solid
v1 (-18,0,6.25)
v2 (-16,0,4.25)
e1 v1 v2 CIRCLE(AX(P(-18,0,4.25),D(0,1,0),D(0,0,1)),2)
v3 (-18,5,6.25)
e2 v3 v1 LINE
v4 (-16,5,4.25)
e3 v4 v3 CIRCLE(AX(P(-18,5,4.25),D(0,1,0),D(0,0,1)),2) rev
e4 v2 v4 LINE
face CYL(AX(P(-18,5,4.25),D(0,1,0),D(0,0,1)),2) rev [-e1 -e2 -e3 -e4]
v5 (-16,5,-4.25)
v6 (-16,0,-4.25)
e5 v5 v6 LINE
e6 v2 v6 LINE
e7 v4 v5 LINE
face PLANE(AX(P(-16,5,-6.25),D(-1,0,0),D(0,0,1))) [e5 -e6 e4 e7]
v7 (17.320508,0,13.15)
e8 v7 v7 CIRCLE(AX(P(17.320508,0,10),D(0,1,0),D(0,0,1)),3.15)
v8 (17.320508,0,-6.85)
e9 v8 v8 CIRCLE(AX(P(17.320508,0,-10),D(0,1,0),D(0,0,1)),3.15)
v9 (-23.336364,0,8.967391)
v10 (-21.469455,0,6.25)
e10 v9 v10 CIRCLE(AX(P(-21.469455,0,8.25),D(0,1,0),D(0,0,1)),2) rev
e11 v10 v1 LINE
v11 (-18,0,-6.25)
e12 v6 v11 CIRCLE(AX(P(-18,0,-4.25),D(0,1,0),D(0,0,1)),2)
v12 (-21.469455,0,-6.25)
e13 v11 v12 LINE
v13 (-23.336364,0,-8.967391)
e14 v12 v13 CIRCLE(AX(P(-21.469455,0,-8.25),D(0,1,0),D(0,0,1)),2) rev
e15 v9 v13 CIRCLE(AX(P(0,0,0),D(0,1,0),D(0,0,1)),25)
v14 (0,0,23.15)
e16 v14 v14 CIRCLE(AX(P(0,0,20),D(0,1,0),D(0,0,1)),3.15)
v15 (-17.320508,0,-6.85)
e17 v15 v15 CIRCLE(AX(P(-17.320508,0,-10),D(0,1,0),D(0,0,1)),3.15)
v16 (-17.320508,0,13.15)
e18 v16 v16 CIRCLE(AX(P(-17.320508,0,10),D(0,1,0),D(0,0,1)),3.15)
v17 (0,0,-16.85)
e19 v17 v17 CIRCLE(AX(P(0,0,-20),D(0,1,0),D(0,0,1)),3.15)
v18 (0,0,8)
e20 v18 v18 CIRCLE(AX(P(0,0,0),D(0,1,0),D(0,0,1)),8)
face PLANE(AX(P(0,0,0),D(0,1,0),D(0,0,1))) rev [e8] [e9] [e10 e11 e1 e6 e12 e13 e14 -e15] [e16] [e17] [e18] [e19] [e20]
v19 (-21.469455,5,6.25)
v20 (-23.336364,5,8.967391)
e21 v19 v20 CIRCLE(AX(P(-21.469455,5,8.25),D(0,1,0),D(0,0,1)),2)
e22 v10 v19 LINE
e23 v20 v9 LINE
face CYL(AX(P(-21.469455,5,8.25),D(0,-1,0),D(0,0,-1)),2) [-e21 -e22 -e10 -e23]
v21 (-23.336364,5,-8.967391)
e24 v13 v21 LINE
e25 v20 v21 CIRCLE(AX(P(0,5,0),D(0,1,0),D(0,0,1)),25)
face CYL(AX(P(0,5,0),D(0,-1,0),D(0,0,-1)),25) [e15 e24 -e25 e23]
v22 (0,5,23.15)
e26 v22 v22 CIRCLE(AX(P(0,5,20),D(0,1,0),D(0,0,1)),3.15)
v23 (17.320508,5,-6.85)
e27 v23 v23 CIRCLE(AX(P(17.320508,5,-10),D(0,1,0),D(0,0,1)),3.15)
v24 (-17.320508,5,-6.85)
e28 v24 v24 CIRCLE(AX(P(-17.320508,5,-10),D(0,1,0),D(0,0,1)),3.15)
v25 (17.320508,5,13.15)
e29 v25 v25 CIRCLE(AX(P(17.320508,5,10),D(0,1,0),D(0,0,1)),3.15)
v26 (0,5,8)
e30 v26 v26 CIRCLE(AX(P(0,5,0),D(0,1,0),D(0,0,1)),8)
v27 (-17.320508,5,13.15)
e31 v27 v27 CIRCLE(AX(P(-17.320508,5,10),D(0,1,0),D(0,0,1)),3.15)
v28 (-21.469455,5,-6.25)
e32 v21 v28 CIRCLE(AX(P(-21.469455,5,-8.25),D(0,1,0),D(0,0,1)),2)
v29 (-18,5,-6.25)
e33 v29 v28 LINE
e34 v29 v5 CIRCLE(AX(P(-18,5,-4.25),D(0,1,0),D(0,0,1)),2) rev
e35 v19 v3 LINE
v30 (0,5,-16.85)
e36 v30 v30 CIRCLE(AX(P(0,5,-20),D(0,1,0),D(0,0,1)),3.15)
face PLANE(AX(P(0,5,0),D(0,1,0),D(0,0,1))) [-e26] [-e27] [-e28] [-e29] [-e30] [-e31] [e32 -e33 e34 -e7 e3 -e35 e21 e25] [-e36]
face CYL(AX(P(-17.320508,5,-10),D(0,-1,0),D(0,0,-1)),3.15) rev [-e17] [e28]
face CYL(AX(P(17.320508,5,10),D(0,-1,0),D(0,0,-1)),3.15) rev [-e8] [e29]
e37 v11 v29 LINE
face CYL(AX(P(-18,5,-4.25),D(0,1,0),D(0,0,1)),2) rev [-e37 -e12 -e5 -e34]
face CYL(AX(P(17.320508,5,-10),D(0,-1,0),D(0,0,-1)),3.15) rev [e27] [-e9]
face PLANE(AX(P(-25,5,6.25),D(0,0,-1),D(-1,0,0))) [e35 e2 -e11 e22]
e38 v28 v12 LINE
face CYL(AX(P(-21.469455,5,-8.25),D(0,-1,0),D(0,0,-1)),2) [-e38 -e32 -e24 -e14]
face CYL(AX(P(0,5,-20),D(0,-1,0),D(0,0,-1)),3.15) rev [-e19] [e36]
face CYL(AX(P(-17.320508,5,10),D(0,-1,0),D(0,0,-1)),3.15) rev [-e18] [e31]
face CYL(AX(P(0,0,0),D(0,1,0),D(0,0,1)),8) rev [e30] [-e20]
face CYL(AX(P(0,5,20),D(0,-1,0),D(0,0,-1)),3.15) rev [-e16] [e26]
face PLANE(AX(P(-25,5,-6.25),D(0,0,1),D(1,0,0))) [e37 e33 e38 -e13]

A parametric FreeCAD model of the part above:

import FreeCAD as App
import Part
import Sketcher
from FreeCAD import Vector
Q = App.Units.Quantity


def edges_at(feature, points):
    """Names of the edges that pass closest to the given points."""
    edges = feature.Shape.Edges
    near = lambda p: min(range(len(edges)), key=lambda i: edges[i].distToShape(Part.Vertex(*p))[0])
    return sorted({f"Edge{near(p) + 1}" for p in points})


def add_polygon(sketch, points):
    """Adds a closed chain of lines whose ends are joined by coincident constraints."""
    first, n = sketch.GeometryCount, len(points)
    for a, b in zip(points, points[1:] + points[:1]):
        sketch.addGeometry(Part.LineSegment(App.Vector(*a, 0), App.Vector(*b, 0)), False)
    for i in range(n):
        sketch.addConstraint(Sketcher.Constraint("Coincident", first + i, 2, first + (i + 1) % n, 1))

doc = App.newDocument("Part")
body = doc.addObject("PartDesign::Body", "Body")

# Sketch on XZ plane
sketch1 = doc.addObject("Sketcher::SketchObject", "Sketch")
body.addObject(sketch1)
sketch1.AttachmentSupport = (doc.XZ_Plane, [""])
sketch1.MapMode = "FlatFace"
sketch1.addGeometry(Part.Circle(Vector(0, 0, 0), Vector(0, 0, 1), 25), False)
sketch1.addGeometry(Part.Circle(Vector(-17.3, 10, 0), Vector(0, 0, 1), 3.1), False)
sketch1.addGeometry(Part.Circle(Vector(0, 20, 0), Vector(0, 0, 1), 3.1), False)
sketch1.addGeometry(Part.Circle(Vector(17.3, 10, 0), Vector(0, 0, 1), 3.1), False)
sketch1.addGeometry(Part.Circle(Vector(-17.3, -10, 0), Vector(0, 0, 1), 3.1), False)
sketch1.addGeometry(Part.Circle(Vector(17.3, -10, 0), Vector(0, 0, 1), 3.1), False)
sketch1.addGeometry(Part.Circle(Vector(0, -20, 0), Vector(0, 0, 1), 3.1), False)
sketch1.addConstraint(Sketcher.Constraint("Coincident", 0, 3, -1, 1))
sketch1.addConstraint(Sketcher.Constraint("Equal", 1, 2))
sketch1.addConstraint(Sketcher.Constraint("Equal", 2, 3))
sketch1.addConstraint(Sketcher.Constraint("Equal", 3, 4))
sketch1.addConstraint(Sketcher.Constraint("Equal", 4, 5))
sketch1.addConstraint(Sketcher.Constraint("Equal", 5, 6))
sketch1.addConstraint(Sketcher.Constraint("Symmetric", 3, 3, 4, 3, -1, 1))
sketch1.addConstraint(Sketcher.Constraint("Symmetric", 1, 3, 5, 3, -1, 1))
sketch1.addConstraint(Sketcher.Constraint("Symmetric", 2, 3, 6, 3, -1, 1))
sketch1.addConstraint(Sketcher.Constraint("Symmetric", 1, 3, 3, 3, -2))
sketch1.addConstraint(Sketcher.Constraint("PointOnObject", 2, 3, -2))
sketch1.addConstraint(Sketcher.Constraint("Diameter", 0, Q("50 mm")))
sketch1.addConstraint(Sketcher.Constraint("Diameter", 1, Q("6.3 mm")))
sketch1.addConstraint(Sketcher.Constraint("DistanceY", -1, 1, 1, 3, Q("10 mm")))
sketch1.addConstraint(Sketcher.Constraint("DistanceY", -1, 1, 2, 3, Q("20 mm")))
sketch1.addConstraint(Sketcher.Constraint("DistanceX", 1, 3, -1, 1, Q("17.320508 mm")))
pad1 = doc.addObject("PartDesign::Pad", "Pad")
body.addObject(pad1)
pad1.Profile = sketch1
pad1.Length = 5
pad1.Reversed = True

# Sketch on XZ plane
sketch2 = doc.addObject("Sketcher::SketchObject", "Sketch001")
body.addObject(sketch2)
sketch2.AttachmentSupport = (doc.XZ_Plane, [""])
sketch2.MapMode = "FlatFace"
add_polygon(sketch2, [(-25, -6), (-25, 6), (-16, 6), (-16, -6)])  # lines 0-3
sketch2.addConstraint(Sketcher.Constraint("Vertical", 0))
sketch2.addConstraint(Sketcher.Constraint("Horizontal", 1))
sketch2.addConstraint(Sketcher.Constraint("Vertical", 2))
sketch2.addConstraint(Sketcher.Constraint("Horizontal", 3))
sketch2.addConstraint(Sketcher.Constraint("DistanceX", 1, 1, 1, 2, Q("9 mm")))
sketch2.addConstraint(Sketcher.Constraint("DistanceY", 0, 1, 0, 2, Q("12.5 mm")))
sketch2.addConstraint(Sketcher.Constraint("DistanceX", 0, 2, -1, 1, Q("25 mm")))
sketch2.addConstraint(Sketcher.Constraint("DistanceY", -1, 1, 0, 2, Q("6.25 mm")))
pocket1 = doc.addObject("PartDesign::Pocket", "Pocket")
body.addObject(pocket1)
pocket1.Profile = sketch2
pocket1.Type = "ThroughAll"
doc.recompute()

fillet = doc.addObject("PartDesign::Fillet", "Fillet")
body.addObject(fillet)
fillet.Base = (pocket1, edges_at(pocket1, [
    (-24.206, 2.5, -6.25),
    (-24.206, 2.5, 6.25),
    (-16, 2.5, -6.25),
    (-16, 2.5, 6.25),
]))
fillet.Radius = 2

# Sketch on XZ plane
sketch3 = doc.addObject("Sketcher::SketchObject", "Sketch002")
body.addObject(sketch3)
sketch3.AttachmentSupport = (doc.XZ_Plane, [""])
sketch3.MapMode = "FlatFace"
sketch3.AttachmentOffset = App.Placement(Vector(0, 0, -5), App.Rotation())
sketch3.addGeometry(Part.Circle(Vector(0, 0, 0), Vector(0, 0, 1), 8), False)
sketch3.addConstraint(Sketcher.Constraint("Coincident", 0, 3, -1, 1))
sketch3.addConstraint(Sketcher.Constraint("Diameter", 0, Q("16 mm")))
pocket2 = doc.addObject("PartDesign::Pocket", "Pocket001")
body.addObject(pocket2)
pocket2.Profile = sketch3
pocket2.Type = "ThroughAll"
pocket2.Reversed = True

doc.recompute()
